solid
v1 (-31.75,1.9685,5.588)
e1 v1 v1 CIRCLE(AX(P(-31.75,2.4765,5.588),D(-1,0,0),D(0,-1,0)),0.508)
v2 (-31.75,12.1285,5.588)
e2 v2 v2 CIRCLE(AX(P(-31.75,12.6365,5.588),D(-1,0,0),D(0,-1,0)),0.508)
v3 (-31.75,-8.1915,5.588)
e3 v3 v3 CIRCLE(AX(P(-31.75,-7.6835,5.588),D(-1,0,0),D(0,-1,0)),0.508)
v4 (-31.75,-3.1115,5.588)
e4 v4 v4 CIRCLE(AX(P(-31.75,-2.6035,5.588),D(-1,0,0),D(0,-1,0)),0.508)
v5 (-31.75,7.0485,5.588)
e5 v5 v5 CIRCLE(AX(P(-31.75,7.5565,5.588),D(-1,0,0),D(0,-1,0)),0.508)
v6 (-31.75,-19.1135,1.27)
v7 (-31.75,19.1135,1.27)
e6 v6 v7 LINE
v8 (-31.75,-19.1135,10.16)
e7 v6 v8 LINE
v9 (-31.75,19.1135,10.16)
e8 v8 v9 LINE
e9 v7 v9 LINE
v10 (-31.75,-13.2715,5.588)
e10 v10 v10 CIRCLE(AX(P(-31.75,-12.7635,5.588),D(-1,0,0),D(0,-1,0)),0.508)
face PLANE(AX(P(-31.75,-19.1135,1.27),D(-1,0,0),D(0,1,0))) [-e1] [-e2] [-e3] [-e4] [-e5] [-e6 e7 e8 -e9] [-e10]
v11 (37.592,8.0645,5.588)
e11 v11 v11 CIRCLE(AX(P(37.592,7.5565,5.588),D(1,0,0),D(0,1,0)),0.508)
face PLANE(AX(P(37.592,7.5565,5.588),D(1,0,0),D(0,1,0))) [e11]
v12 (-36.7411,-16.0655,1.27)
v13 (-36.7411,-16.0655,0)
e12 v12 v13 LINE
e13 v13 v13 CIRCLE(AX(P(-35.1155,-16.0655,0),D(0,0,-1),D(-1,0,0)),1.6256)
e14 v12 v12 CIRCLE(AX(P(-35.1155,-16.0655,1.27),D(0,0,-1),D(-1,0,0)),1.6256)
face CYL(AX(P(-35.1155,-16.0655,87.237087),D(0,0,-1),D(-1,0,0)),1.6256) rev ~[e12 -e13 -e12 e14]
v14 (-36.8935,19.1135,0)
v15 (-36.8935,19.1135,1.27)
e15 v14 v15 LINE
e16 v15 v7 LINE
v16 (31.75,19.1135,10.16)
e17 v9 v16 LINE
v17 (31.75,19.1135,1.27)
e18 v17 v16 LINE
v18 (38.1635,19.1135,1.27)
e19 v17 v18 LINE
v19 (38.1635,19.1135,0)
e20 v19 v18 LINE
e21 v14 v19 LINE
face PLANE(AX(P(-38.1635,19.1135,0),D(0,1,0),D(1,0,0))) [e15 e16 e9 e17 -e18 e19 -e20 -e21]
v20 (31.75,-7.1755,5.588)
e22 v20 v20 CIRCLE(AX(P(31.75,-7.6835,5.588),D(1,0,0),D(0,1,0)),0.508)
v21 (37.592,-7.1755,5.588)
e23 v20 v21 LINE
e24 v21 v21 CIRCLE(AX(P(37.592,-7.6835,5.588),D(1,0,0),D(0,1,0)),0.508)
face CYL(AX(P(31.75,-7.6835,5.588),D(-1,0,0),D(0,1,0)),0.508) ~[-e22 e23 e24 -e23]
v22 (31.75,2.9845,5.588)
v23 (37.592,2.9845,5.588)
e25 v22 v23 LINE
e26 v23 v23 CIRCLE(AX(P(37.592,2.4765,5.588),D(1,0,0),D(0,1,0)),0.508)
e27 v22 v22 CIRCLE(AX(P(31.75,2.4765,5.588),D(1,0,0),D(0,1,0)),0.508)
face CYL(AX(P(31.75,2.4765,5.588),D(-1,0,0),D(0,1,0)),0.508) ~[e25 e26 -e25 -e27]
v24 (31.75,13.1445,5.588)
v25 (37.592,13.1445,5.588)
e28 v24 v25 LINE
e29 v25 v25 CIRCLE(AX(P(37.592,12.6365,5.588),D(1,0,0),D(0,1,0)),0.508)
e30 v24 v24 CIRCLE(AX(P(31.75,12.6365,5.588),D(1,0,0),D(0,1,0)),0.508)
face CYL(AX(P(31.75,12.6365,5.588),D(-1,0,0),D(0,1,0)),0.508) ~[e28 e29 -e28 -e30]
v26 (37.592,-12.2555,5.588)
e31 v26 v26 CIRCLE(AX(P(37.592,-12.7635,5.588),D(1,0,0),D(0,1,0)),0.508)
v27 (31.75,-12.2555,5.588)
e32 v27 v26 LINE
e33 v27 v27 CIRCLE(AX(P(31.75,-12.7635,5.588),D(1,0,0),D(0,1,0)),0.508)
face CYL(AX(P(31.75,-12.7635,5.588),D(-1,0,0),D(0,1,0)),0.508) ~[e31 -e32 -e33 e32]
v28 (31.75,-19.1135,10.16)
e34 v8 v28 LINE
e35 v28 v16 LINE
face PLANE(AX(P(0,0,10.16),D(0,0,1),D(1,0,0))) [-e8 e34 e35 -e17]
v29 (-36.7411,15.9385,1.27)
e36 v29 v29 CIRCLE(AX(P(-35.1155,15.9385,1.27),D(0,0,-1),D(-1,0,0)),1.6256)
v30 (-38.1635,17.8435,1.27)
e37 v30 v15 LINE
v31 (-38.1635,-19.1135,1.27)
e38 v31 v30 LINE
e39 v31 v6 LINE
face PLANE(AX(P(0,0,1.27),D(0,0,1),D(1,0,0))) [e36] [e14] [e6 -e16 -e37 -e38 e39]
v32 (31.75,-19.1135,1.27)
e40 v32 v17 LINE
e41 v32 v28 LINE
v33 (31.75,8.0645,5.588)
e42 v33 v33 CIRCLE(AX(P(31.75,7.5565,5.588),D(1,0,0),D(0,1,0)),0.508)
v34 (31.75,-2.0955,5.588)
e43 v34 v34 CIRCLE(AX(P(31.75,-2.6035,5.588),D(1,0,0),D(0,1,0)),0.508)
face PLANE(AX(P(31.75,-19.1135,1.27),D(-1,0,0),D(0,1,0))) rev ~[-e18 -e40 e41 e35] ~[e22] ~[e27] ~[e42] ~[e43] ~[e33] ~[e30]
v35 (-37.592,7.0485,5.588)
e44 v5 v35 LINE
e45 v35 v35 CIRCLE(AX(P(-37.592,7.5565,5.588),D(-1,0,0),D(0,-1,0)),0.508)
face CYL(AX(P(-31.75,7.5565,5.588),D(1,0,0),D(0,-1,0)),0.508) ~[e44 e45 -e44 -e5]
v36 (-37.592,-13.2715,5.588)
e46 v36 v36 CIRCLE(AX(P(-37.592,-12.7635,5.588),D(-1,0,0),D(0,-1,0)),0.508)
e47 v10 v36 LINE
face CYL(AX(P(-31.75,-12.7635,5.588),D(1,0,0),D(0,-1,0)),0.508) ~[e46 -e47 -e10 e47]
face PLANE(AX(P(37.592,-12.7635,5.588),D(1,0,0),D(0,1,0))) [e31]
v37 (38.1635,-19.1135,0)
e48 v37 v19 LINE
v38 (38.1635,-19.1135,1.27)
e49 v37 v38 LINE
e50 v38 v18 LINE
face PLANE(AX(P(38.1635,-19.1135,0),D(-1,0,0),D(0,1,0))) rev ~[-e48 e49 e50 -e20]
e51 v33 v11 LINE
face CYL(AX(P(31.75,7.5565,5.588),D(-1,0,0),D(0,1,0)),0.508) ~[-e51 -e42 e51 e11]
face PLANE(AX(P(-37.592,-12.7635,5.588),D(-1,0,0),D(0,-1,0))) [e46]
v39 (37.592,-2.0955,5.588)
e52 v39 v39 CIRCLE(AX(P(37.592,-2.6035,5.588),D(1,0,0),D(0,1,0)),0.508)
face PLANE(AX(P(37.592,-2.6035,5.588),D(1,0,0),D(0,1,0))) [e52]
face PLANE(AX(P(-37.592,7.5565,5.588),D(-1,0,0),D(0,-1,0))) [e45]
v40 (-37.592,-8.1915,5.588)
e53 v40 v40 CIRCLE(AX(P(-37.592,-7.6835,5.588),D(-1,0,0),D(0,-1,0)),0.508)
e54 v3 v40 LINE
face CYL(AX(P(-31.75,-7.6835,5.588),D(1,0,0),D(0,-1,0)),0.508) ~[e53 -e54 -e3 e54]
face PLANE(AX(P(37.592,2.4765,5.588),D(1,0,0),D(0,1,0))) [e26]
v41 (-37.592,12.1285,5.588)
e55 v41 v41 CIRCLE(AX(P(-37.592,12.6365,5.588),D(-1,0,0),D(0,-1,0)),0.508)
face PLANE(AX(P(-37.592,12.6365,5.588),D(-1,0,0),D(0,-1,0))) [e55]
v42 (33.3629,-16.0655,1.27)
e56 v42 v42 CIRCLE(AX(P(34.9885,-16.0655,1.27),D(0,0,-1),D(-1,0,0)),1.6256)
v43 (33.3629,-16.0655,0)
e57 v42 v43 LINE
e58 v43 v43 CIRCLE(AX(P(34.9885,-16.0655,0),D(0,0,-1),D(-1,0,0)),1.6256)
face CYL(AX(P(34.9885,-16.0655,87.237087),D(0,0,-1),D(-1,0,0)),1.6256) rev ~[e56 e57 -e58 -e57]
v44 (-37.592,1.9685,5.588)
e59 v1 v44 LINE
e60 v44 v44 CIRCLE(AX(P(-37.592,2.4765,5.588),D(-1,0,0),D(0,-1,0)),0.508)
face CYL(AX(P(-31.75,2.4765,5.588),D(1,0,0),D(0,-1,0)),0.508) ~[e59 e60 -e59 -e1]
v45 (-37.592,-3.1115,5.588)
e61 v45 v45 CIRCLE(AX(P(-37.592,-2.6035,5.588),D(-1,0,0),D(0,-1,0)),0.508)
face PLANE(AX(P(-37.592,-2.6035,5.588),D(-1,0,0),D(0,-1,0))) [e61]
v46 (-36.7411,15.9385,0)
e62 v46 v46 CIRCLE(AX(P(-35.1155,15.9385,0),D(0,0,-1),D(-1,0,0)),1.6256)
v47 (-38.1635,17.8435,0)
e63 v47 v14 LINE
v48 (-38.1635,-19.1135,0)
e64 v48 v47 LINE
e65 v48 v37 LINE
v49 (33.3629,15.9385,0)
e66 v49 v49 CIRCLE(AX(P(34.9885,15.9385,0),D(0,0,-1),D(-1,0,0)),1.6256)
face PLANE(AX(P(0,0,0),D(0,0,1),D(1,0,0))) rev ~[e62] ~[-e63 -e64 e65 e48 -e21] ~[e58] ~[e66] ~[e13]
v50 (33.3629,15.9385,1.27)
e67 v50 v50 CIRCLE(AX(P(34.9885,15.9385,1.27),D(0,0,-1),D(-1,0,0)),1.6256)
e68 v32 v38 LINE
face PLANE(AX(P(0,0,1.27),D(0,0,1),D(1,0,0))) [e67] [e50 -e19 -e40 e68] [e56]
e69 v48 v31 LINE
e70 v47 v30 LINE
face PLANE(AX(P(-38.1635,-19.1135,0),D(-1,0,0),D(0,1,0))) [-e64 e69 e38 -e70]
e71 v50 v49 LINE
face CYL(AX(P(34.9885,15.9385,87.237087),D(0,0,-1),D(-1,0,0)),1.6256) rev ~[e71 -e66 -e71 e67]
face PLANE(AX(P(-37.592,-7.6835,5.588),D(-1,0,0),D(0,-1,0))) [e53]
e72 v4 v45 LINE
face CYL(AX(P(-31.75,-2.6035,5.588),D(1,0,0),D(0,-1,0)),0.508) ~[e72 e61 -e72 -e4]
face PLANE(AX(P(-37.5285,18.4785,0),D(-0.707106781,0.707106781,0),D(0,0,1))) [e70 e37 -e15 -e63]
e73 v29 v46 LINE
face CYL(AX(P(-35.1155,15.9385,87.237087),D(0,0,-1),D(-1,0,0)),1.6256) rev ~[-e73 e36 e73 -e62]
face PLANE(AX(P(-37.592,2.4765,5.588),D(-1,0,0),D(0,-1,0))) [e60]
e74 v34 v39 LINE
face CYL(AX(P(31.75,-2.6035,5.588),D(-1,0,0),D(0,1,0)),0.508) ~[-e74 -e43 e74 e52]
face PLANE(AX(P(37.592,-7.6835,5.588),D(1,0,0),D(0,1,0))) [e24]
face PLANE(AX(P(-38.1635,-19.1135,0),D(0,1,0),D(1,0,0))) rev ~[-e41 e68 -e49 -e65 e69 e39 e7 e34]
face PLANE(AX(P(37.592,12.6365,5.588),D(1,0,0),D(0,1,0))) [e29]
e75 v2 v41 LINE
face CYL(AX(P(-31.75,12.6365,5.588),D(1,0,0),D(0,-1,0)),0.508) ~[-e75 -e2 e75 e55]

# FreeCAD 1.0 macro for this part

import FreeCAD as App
import Part
import Sketcher
from FreeCAD import Vector
Q = App.Units.Quantity


def edges_at(feature, points):
    """Names of the edges that pass closest to the given points."""
    edges = feature.Shape.Edges
    near = lambda p: min(range(len(edges)), key=lambda i: edges[i].distToShape(Part.Vertex(*p))[0])
    return sorted({f"Edge{near(p) + 1}" for p in points})


def add_polygon(sketch, points):
    """Adds a closed chain of lines whose ends are joined by coincident constraints."""
    first, n = sketch.GeometryCount, len(points)
    for a, b in zip(points, points[1:] + points[:1]):
        sketch.addGeometry(Part.LineSegment(App.Vector(*a, 0), App.Vector(*b, 0)), False)
    for i in range(n):
        sketch.addConstraint(Sketcher.Constraint("Coincident", first + i, 2, first + (i + 1) % n, 1))

doc = App.newDocument("Part")
body = doc.addObject("PartDesign::Body", "Body")

sketch1 = doc.addObject("Sketcher::SketchObject", "Sketch")
body.addObject(sketch1)
sketch1.AttachmentSupport = (doc.XY_Plane, [""])
sketch1.MapMode = "FlatFace"
add_polygon(sketch1, [(-38, 19), (-38, -19), (38, -19), (38, 19)])
sketch1.addConstraint(Sketcher.Constraint("Vertical", 0))
sketch1.addConstraint(Sketcher.Constraint("Horizontal", 1))
sketch1.addConstraint(Sketcher.Constraint("Vertical", 2))
sketch1.addConstraint(Sketcher.Constraint("Horizontal", 3))
sketch1.addConstraint(Sketcher.Constraint("Symmetric", 0, 2, 2, 2, -1, 1))
sketch1.addConstraint(Sketcher.Constraint("DistanceX", 1, 1, 1, 2, Q("3.005 in")))
sketch1.addConstraint(Sketcher.Constraint("DistanceY", 0, 2, 0, 1, Q("1.505 in")))
pad1 = doc.addObject("PartDesign::Pad", "Pad")
body.addObject(pad1)
pad1.Profile = sketch1
pad1.Length = Q("0.05 in")

sketch2 = doc.addObject("Sketcher::SketchObject", "Sketch001")
body.addObject(sketch2)
sketch2.AttachmentSupport = (doc.XY_Plane, [""])
sketch2.MapMode = "FlatFace"
sketch2.AttachmentOffset = App.Placement(Vector(0, 0, 0.05 * 25.4), App.Rotation())
add_polygon(sketch2, [(-32, 19), (-32, -19), (32, -19), (32, 19)])
sketch2.addConstraint(Sketcher.Constraint("Vertical", 0))
sketch2.addConstraint(Sketcher.Constraint("Horizontal", 1))
sketch2.addConstraint(Sketcher.Constraint("Vertical", 2))
sketch2.addConstraint(Sketcher.Constraint("Horizontal", 3))
sketch2.addConstraint(Sketcher.Constraint("Symmetric", 0, 2, 2, 2, -1, 1))
sketch2.addConstraint(Sketcher.Constraint("DistanceX", 1, 1, 1, 2, Q("2.5 in")))
sketch2.addConstraint(Sketcher.Constraint("DistanceY", 0, 2, 0, 1, Q("1.505 in")))
pad2 = doc.addObject("PartDesign::Pad", "Pad001")
body.addObject(pad2)
pad2.Profile = sketch2
pad2.Length = Q("0.35 in")

sketch3 = doc.addObject("Sketcher::SketchObject", "Sketch002")
body.addObject(sketch3)
sketch3.AttachmentSupport = (doc.XY_Plane, [""])
sketch3.MapMode = "FlatFace"
sketch3.AttachmentOffset = App.Placement(Vector(0, 0, 0.05 * 25.4), App.Rotation())
sketch3.addGeometry(Part.Circle(Vector(35, -16.1, 0), Vector(0, 0, 1), 1.6), False)
sketch3.addConstraint(Sketcher.Constraint("Diameter", 0, Q("0.128 in")))
sketch3.addConstraint(Sketcher.Constraint("DistanceX", -1, 1, 0, 3, Q("1.3775 in")))
sketch3.addConstraint(Sketcher.Constraint("DistanceY", 0, 3, -1, 1, Q("0.6325 in")))
doc.recompute()
hole = doc.addObject("PartDesign::Hole", "Hole")
body.addObject(hole)
hole.Profile = sketch3
hole.ThreadType = "None"
hole.Diameter = Q("0.128 in")
hole.DepthType = "ThroughAll"

sketch4 = doc.addObject("Sketcher::SketchObject", "Sketch003")
body.addObject(sketch4)
sketch4.AttachmentSupport = (doc.XY_Plane, [""])
sketch4.MapMode = "FlatFace"
sketch4.AttachmentOffset = App.Placement(Vector(0, 0, 0.05 * 25.4), App.Rotation())
sketch4.addGeometry(Part.Circle(Vector(35, 15.9, 0), Vector(0, 0, 1), 1.6), False)
sketch4.addConstraint(Sketcher.Constraint("Diameter", 0, Q("0.128 in")))
sketch4.addConstraint(Sketcher.Constraint("DistanceX", -1, 1, 0, 3, Q("1.3775 in")))
sketch4.addConstraint(Sketcher.Constraint("DistanceY", -1, 1, 0, 3, Q("0.6275 in")))
doc.recompute()
hole2 = doc.addObject("PartDesign::Hole", "Hole001")
body.addObject(hole2)
hole2.Profile = sketch4
hole2.ThreadType = "None"
hole2.Diameter = Q("0.128 in")
hole2.DepthType = "ThroughAll"

sketch5 = doc.addObject("Sketcher::SketchObject", "Sketch004")
body.addObject(sketch5)
sketch5.AttachmentSupport = (doc.XY_Plane, [""])
sketch5.MapMode = "FlatFace"
sketch5.AttachmentOffset = App.Placement(Vector(0, 0, 0.05 * 25.4), App.Rotation())
sketch5.addGeometry(Part.Circle(Vector(-35.1, -16.1, 0), Vector(0, 0, 1), 1.6), False)
sketch5.addConstraint(Sketcher.Constraint("Diameter", 0, Q("0.128 in")))
sketch5.addConstraint(Sketcher.Constraint("DistanceX", 0, 3, -1, 1, Q("1.3825 in")))
sketch5.addConstraint(Sketcher.Constraint("DistanceY", 0, 3, -1, 1, Q("0.6325 in")))
doc.recompute()
hole3 = doc.addObject("PartDesign::Hole", "Hole002")
body.addObject(hole3)
hole3.Profile = sketch5
hole3.ThreadType = "None"
hole3.Diameter = Q("0.128 in")
hole3.DepthType = "ThroughAll"

sketch6 = doc.addObject("Sketcher::SketchObject", "Sketch005")
body.addObject(sketch6)
sketch6.AttachmentSupport = (doc.XY_Plane, [""])
sketch6.MapMode = "FlatFace"
sketch6.AttachmentOffset = App.Placement(Vector(0, 0, 0.05 * 25.4), App.Rotation())
sketch6.addGeometry(Part.Circle(Vector(-35.1, 15.9, 0), Vector(0, 0, 1), 1.6), False)
sketch6.addConstraint(Sketcher.Constraint("Diameter", 0, Q("0.128 in")))
sketch6.addConstraint(Sketcher.Constraint("DistanceX", 0, 3, -1, 1, Q("1.3825 in")))
sketch6.addConstraint(Sketcher.Constraint("DistanceY", -1, 1, 0, 3, Q("0.6275 in")))
doc.recompute()
hole4 = doc.addObject("PartDesign::Hole", "Hole003")
body.addObject(hole4)
hole4.Profile = sketch6
hole4.ThreadType = "None"
hole4.Diameter = Q("0.128 in")
hole4.DepthType = "ThroughAll"

sketch7 = doc.addObject("Sketcher::SketchObject", "Sketch006")
body.addObject(sketch7)
sketch7.AttachmentSupport = (doc.YZ_Plane, [""])
sketch7.MapMode = "FlatFace"
sketch7.AttachmentOffset = App.Placement(Vector(0, 0, 1.25 * 25.4), App.Rotation())
sketch7.addGeometry(Part.Circle(Vector(-12.8, 5.6, 0), Vector(0, 0, 1), 0.5), False)
sketch7.addGeometry(Part.Circle(Vector(-7.7, 5.6, 0), Vector(0, 0, 1), 0.5), False)
sketch7.addGeometry(Part.Circle(Vector(-2.6, 5.6, 0), Vector(0, 0, 1), 0.5), False)
sketch7.addGeometry(Part.Circle(Vector(2.5, 5.6, 0), Vector(0, 0, 1), 0.5), False)
sketch7.addGeometry(Part.Circle(Vector(7.6, 5.6, 0), Vector(0, 0, 1), 0.5), False)
sketch7.addGeometry(Part.Circle(Vector(12.6, 5.6, 0), Vector(0, 0, 1), 0.5), False)
sketch7.addConstraint(Sketcher.Constraint("Equal", 0, 1))
sketch7.addConstraint(Sketcher.Constraint("Equal", 1, 2))
sketch7.addConstraint(Sketcher.Constraint("Equal", 2, 3))
sketch7.addConstraint(Sketcher.Constraint("Equal", 3, 4))
sketch7.addConstraint(Sketcher.Constraint("Equal", 4, 5))
sketch7.addConstraint(Sketcher.Constraint("Horizontal", 0, 3, 1, 3))
sketch7.addConstraint(Sketcher.Constraint("Horizontal", 1, 3, 2, 3))
sketch7.addConstraint(Sketcher.Constraint("Horizontal", 2, 3, 3, 3))
sketch7.addConstraint(Sketcher.Constraint("Horizontal", 3, 3, 4, 3))
sketch7.addConstraint(Sketcher.Constraint("Horizontal", 4, 3, 5, 3))
sketch7.addConstraint(Sketcher.Constraint("Diameter", 0, Q("0.04 in")))
sketch7.addConstraint(Sketcher.Constraint("DistanceX", 0, 3, 5, 3, Q("1 in")))
sketch7.addConstraint(Sketcher.Constraint("DistanceX", 0, 3, 1, 3, Q("0.2 in")))
sketch7.addConstraint(Sketcher.Constraint("DistanceX", 1, 3, 2, 3, Q("0.2 in")))
sketch7.addConstraint(Sketcher.Constraint("DistanceX", 2, 3, 3, 3, Q("0.2 in")))
sketch7.addConstraint(Sketcher.Constraint("DistanceX", 3, 3, 4, 3, Q("0.2 in")))
sketch7.addConstraint(Sketcher.Constraint("DistanceY", -1, 1, 0, 3, Q("0.22 in")))
sketch7.addConstraint(Sketcher.Constraint("DistanceX", 0, 3, -1, 1, Q("0.5025 in")))
pad3 = doc.addObject("PartDesign::Pad", "Pad002")
body.addObject(pad3)
pad3.Profile = sketch7
pad3.Length = Q("0.23 in")

sketch8 = doc.addObject("Sketcher::SketchObject", "Sketch007")
body.addObject(sketch8)
sketch8.AttachmentSupport = (doc.YZ_Plane, [""])
sketch8.MapMode = "FlatFace"
sketch8.AttachmentOffset = App.Placement(Vector(0, 0, -1.25 * 25.4), App.Rotation())
sketch8.addGeometry(Part.Circle(Vector(12.6, 5.6, 0), Vector(0, 0, 1), 0.5), False)
sketch8.addGeometry(Part.Circle(Vector(7.6, 5.6, 0), Vector(0, 0, 1), 0.5), False)
sketch8.addGeometry(Part.Circle(Vector(2.5, 5.6, 0), Vector(0, 0, 1), 0.5), False)
sketch8.addGeometry(Part.Circle(Vector(-2.6, 5.6, 0), Vector(0, 0, 1), 0.5), False)
sketch8.addGeometry(Part.Circle(Vector(-7.7, 5.6, 0), Vector(0, 0, 1), 0.5), False)
sketch8.addGeometry(Part.Circle(Vector(-12.8, 5.6, 0), Vector(0, 0, 1), 0.5), False)
sketch8.addConstraint(Sketcher.Constraint("Equal", 0, 1))
sketch8.addConstraint(Sketcher.Constraint("Equal", 1, 2))
sketch8.addConstraint(Sketcher.Constraint("Equal", 2, 3))
sketch8.addConstraint(Sketcher.Constraint("Equal", 3, 4))
sketch8.addConstraint(Sketcher.Constraint("Equal", 4, 5))
sketch8.addConstraint(Sketcher.Constraint("Horizontal", 0, 3, 1, 3))
sketch8.addConstraint(Sketcher.Constraint("Horizontal", 1, 3, 2, 3))
sketch8.addConstraint(Sketcher.Constraint("Horizontal", 2, 3, 3, 3))
sketch8.addConstraint(Sketcher.Constraint("Horizontal", 3, 3, 4, 3))
sketch8.addConstraint(Sketcher.Constraint("Horizontal", 4, 3, 5, 3))
sketch8.addConstraint(Sketcher.Constraint("Diameter", 0, Q("0.04 in")))
sketch8.addConstraint(Sketcher.Constraint("DistanceX", 5, 3, 0, 3, Q("1 in")))
sketch8.addConstraint(Sketcher.Constraint("DistanceX", 1, 3, 0, 3, Q("0.2 in")))
sketch8.addConstraint(Sketcher.Constraint("DistanceX", 2, 3, 1, 3, Q("0.2 in")))
sketch8.addConstraint(Sketcher.Constraint("DistanceX", 3, 3, 2, 3, Q("0.2 in")))
sketch8.addConstraint(Sketcher.Constraint("DistanceX", 4, 3, 3, 3, Q("0.2 in")))
sketch8.addConstraint(Sketcher.Constraint("DistanceY", -1, 1, 0, 3, Q("0.22 in")))
sketch8.addConstraint(Sketcher.Constraint("DistanceX", -1, 1, 0, 3, Q("0.4975 in")))
pad4 = doc.addObject("PartDesign::Pad", "Pad003")
body.addObject(pad4)
pad4.Profile = sketch8
pad4.Length = Q("0.23 in")
pad4.Reversed = True
doc.recompute()

chamfer = doc.addObject("PartDesign::Chamfer", "Chamfer")
body.addObject(chamfer)
chamfer.Base = (pad4, edges_at(pad4, [(-38.163, 19.113, 0.635)]))
chamfer.Size = Q("0.05 in")

doc.recompute()
